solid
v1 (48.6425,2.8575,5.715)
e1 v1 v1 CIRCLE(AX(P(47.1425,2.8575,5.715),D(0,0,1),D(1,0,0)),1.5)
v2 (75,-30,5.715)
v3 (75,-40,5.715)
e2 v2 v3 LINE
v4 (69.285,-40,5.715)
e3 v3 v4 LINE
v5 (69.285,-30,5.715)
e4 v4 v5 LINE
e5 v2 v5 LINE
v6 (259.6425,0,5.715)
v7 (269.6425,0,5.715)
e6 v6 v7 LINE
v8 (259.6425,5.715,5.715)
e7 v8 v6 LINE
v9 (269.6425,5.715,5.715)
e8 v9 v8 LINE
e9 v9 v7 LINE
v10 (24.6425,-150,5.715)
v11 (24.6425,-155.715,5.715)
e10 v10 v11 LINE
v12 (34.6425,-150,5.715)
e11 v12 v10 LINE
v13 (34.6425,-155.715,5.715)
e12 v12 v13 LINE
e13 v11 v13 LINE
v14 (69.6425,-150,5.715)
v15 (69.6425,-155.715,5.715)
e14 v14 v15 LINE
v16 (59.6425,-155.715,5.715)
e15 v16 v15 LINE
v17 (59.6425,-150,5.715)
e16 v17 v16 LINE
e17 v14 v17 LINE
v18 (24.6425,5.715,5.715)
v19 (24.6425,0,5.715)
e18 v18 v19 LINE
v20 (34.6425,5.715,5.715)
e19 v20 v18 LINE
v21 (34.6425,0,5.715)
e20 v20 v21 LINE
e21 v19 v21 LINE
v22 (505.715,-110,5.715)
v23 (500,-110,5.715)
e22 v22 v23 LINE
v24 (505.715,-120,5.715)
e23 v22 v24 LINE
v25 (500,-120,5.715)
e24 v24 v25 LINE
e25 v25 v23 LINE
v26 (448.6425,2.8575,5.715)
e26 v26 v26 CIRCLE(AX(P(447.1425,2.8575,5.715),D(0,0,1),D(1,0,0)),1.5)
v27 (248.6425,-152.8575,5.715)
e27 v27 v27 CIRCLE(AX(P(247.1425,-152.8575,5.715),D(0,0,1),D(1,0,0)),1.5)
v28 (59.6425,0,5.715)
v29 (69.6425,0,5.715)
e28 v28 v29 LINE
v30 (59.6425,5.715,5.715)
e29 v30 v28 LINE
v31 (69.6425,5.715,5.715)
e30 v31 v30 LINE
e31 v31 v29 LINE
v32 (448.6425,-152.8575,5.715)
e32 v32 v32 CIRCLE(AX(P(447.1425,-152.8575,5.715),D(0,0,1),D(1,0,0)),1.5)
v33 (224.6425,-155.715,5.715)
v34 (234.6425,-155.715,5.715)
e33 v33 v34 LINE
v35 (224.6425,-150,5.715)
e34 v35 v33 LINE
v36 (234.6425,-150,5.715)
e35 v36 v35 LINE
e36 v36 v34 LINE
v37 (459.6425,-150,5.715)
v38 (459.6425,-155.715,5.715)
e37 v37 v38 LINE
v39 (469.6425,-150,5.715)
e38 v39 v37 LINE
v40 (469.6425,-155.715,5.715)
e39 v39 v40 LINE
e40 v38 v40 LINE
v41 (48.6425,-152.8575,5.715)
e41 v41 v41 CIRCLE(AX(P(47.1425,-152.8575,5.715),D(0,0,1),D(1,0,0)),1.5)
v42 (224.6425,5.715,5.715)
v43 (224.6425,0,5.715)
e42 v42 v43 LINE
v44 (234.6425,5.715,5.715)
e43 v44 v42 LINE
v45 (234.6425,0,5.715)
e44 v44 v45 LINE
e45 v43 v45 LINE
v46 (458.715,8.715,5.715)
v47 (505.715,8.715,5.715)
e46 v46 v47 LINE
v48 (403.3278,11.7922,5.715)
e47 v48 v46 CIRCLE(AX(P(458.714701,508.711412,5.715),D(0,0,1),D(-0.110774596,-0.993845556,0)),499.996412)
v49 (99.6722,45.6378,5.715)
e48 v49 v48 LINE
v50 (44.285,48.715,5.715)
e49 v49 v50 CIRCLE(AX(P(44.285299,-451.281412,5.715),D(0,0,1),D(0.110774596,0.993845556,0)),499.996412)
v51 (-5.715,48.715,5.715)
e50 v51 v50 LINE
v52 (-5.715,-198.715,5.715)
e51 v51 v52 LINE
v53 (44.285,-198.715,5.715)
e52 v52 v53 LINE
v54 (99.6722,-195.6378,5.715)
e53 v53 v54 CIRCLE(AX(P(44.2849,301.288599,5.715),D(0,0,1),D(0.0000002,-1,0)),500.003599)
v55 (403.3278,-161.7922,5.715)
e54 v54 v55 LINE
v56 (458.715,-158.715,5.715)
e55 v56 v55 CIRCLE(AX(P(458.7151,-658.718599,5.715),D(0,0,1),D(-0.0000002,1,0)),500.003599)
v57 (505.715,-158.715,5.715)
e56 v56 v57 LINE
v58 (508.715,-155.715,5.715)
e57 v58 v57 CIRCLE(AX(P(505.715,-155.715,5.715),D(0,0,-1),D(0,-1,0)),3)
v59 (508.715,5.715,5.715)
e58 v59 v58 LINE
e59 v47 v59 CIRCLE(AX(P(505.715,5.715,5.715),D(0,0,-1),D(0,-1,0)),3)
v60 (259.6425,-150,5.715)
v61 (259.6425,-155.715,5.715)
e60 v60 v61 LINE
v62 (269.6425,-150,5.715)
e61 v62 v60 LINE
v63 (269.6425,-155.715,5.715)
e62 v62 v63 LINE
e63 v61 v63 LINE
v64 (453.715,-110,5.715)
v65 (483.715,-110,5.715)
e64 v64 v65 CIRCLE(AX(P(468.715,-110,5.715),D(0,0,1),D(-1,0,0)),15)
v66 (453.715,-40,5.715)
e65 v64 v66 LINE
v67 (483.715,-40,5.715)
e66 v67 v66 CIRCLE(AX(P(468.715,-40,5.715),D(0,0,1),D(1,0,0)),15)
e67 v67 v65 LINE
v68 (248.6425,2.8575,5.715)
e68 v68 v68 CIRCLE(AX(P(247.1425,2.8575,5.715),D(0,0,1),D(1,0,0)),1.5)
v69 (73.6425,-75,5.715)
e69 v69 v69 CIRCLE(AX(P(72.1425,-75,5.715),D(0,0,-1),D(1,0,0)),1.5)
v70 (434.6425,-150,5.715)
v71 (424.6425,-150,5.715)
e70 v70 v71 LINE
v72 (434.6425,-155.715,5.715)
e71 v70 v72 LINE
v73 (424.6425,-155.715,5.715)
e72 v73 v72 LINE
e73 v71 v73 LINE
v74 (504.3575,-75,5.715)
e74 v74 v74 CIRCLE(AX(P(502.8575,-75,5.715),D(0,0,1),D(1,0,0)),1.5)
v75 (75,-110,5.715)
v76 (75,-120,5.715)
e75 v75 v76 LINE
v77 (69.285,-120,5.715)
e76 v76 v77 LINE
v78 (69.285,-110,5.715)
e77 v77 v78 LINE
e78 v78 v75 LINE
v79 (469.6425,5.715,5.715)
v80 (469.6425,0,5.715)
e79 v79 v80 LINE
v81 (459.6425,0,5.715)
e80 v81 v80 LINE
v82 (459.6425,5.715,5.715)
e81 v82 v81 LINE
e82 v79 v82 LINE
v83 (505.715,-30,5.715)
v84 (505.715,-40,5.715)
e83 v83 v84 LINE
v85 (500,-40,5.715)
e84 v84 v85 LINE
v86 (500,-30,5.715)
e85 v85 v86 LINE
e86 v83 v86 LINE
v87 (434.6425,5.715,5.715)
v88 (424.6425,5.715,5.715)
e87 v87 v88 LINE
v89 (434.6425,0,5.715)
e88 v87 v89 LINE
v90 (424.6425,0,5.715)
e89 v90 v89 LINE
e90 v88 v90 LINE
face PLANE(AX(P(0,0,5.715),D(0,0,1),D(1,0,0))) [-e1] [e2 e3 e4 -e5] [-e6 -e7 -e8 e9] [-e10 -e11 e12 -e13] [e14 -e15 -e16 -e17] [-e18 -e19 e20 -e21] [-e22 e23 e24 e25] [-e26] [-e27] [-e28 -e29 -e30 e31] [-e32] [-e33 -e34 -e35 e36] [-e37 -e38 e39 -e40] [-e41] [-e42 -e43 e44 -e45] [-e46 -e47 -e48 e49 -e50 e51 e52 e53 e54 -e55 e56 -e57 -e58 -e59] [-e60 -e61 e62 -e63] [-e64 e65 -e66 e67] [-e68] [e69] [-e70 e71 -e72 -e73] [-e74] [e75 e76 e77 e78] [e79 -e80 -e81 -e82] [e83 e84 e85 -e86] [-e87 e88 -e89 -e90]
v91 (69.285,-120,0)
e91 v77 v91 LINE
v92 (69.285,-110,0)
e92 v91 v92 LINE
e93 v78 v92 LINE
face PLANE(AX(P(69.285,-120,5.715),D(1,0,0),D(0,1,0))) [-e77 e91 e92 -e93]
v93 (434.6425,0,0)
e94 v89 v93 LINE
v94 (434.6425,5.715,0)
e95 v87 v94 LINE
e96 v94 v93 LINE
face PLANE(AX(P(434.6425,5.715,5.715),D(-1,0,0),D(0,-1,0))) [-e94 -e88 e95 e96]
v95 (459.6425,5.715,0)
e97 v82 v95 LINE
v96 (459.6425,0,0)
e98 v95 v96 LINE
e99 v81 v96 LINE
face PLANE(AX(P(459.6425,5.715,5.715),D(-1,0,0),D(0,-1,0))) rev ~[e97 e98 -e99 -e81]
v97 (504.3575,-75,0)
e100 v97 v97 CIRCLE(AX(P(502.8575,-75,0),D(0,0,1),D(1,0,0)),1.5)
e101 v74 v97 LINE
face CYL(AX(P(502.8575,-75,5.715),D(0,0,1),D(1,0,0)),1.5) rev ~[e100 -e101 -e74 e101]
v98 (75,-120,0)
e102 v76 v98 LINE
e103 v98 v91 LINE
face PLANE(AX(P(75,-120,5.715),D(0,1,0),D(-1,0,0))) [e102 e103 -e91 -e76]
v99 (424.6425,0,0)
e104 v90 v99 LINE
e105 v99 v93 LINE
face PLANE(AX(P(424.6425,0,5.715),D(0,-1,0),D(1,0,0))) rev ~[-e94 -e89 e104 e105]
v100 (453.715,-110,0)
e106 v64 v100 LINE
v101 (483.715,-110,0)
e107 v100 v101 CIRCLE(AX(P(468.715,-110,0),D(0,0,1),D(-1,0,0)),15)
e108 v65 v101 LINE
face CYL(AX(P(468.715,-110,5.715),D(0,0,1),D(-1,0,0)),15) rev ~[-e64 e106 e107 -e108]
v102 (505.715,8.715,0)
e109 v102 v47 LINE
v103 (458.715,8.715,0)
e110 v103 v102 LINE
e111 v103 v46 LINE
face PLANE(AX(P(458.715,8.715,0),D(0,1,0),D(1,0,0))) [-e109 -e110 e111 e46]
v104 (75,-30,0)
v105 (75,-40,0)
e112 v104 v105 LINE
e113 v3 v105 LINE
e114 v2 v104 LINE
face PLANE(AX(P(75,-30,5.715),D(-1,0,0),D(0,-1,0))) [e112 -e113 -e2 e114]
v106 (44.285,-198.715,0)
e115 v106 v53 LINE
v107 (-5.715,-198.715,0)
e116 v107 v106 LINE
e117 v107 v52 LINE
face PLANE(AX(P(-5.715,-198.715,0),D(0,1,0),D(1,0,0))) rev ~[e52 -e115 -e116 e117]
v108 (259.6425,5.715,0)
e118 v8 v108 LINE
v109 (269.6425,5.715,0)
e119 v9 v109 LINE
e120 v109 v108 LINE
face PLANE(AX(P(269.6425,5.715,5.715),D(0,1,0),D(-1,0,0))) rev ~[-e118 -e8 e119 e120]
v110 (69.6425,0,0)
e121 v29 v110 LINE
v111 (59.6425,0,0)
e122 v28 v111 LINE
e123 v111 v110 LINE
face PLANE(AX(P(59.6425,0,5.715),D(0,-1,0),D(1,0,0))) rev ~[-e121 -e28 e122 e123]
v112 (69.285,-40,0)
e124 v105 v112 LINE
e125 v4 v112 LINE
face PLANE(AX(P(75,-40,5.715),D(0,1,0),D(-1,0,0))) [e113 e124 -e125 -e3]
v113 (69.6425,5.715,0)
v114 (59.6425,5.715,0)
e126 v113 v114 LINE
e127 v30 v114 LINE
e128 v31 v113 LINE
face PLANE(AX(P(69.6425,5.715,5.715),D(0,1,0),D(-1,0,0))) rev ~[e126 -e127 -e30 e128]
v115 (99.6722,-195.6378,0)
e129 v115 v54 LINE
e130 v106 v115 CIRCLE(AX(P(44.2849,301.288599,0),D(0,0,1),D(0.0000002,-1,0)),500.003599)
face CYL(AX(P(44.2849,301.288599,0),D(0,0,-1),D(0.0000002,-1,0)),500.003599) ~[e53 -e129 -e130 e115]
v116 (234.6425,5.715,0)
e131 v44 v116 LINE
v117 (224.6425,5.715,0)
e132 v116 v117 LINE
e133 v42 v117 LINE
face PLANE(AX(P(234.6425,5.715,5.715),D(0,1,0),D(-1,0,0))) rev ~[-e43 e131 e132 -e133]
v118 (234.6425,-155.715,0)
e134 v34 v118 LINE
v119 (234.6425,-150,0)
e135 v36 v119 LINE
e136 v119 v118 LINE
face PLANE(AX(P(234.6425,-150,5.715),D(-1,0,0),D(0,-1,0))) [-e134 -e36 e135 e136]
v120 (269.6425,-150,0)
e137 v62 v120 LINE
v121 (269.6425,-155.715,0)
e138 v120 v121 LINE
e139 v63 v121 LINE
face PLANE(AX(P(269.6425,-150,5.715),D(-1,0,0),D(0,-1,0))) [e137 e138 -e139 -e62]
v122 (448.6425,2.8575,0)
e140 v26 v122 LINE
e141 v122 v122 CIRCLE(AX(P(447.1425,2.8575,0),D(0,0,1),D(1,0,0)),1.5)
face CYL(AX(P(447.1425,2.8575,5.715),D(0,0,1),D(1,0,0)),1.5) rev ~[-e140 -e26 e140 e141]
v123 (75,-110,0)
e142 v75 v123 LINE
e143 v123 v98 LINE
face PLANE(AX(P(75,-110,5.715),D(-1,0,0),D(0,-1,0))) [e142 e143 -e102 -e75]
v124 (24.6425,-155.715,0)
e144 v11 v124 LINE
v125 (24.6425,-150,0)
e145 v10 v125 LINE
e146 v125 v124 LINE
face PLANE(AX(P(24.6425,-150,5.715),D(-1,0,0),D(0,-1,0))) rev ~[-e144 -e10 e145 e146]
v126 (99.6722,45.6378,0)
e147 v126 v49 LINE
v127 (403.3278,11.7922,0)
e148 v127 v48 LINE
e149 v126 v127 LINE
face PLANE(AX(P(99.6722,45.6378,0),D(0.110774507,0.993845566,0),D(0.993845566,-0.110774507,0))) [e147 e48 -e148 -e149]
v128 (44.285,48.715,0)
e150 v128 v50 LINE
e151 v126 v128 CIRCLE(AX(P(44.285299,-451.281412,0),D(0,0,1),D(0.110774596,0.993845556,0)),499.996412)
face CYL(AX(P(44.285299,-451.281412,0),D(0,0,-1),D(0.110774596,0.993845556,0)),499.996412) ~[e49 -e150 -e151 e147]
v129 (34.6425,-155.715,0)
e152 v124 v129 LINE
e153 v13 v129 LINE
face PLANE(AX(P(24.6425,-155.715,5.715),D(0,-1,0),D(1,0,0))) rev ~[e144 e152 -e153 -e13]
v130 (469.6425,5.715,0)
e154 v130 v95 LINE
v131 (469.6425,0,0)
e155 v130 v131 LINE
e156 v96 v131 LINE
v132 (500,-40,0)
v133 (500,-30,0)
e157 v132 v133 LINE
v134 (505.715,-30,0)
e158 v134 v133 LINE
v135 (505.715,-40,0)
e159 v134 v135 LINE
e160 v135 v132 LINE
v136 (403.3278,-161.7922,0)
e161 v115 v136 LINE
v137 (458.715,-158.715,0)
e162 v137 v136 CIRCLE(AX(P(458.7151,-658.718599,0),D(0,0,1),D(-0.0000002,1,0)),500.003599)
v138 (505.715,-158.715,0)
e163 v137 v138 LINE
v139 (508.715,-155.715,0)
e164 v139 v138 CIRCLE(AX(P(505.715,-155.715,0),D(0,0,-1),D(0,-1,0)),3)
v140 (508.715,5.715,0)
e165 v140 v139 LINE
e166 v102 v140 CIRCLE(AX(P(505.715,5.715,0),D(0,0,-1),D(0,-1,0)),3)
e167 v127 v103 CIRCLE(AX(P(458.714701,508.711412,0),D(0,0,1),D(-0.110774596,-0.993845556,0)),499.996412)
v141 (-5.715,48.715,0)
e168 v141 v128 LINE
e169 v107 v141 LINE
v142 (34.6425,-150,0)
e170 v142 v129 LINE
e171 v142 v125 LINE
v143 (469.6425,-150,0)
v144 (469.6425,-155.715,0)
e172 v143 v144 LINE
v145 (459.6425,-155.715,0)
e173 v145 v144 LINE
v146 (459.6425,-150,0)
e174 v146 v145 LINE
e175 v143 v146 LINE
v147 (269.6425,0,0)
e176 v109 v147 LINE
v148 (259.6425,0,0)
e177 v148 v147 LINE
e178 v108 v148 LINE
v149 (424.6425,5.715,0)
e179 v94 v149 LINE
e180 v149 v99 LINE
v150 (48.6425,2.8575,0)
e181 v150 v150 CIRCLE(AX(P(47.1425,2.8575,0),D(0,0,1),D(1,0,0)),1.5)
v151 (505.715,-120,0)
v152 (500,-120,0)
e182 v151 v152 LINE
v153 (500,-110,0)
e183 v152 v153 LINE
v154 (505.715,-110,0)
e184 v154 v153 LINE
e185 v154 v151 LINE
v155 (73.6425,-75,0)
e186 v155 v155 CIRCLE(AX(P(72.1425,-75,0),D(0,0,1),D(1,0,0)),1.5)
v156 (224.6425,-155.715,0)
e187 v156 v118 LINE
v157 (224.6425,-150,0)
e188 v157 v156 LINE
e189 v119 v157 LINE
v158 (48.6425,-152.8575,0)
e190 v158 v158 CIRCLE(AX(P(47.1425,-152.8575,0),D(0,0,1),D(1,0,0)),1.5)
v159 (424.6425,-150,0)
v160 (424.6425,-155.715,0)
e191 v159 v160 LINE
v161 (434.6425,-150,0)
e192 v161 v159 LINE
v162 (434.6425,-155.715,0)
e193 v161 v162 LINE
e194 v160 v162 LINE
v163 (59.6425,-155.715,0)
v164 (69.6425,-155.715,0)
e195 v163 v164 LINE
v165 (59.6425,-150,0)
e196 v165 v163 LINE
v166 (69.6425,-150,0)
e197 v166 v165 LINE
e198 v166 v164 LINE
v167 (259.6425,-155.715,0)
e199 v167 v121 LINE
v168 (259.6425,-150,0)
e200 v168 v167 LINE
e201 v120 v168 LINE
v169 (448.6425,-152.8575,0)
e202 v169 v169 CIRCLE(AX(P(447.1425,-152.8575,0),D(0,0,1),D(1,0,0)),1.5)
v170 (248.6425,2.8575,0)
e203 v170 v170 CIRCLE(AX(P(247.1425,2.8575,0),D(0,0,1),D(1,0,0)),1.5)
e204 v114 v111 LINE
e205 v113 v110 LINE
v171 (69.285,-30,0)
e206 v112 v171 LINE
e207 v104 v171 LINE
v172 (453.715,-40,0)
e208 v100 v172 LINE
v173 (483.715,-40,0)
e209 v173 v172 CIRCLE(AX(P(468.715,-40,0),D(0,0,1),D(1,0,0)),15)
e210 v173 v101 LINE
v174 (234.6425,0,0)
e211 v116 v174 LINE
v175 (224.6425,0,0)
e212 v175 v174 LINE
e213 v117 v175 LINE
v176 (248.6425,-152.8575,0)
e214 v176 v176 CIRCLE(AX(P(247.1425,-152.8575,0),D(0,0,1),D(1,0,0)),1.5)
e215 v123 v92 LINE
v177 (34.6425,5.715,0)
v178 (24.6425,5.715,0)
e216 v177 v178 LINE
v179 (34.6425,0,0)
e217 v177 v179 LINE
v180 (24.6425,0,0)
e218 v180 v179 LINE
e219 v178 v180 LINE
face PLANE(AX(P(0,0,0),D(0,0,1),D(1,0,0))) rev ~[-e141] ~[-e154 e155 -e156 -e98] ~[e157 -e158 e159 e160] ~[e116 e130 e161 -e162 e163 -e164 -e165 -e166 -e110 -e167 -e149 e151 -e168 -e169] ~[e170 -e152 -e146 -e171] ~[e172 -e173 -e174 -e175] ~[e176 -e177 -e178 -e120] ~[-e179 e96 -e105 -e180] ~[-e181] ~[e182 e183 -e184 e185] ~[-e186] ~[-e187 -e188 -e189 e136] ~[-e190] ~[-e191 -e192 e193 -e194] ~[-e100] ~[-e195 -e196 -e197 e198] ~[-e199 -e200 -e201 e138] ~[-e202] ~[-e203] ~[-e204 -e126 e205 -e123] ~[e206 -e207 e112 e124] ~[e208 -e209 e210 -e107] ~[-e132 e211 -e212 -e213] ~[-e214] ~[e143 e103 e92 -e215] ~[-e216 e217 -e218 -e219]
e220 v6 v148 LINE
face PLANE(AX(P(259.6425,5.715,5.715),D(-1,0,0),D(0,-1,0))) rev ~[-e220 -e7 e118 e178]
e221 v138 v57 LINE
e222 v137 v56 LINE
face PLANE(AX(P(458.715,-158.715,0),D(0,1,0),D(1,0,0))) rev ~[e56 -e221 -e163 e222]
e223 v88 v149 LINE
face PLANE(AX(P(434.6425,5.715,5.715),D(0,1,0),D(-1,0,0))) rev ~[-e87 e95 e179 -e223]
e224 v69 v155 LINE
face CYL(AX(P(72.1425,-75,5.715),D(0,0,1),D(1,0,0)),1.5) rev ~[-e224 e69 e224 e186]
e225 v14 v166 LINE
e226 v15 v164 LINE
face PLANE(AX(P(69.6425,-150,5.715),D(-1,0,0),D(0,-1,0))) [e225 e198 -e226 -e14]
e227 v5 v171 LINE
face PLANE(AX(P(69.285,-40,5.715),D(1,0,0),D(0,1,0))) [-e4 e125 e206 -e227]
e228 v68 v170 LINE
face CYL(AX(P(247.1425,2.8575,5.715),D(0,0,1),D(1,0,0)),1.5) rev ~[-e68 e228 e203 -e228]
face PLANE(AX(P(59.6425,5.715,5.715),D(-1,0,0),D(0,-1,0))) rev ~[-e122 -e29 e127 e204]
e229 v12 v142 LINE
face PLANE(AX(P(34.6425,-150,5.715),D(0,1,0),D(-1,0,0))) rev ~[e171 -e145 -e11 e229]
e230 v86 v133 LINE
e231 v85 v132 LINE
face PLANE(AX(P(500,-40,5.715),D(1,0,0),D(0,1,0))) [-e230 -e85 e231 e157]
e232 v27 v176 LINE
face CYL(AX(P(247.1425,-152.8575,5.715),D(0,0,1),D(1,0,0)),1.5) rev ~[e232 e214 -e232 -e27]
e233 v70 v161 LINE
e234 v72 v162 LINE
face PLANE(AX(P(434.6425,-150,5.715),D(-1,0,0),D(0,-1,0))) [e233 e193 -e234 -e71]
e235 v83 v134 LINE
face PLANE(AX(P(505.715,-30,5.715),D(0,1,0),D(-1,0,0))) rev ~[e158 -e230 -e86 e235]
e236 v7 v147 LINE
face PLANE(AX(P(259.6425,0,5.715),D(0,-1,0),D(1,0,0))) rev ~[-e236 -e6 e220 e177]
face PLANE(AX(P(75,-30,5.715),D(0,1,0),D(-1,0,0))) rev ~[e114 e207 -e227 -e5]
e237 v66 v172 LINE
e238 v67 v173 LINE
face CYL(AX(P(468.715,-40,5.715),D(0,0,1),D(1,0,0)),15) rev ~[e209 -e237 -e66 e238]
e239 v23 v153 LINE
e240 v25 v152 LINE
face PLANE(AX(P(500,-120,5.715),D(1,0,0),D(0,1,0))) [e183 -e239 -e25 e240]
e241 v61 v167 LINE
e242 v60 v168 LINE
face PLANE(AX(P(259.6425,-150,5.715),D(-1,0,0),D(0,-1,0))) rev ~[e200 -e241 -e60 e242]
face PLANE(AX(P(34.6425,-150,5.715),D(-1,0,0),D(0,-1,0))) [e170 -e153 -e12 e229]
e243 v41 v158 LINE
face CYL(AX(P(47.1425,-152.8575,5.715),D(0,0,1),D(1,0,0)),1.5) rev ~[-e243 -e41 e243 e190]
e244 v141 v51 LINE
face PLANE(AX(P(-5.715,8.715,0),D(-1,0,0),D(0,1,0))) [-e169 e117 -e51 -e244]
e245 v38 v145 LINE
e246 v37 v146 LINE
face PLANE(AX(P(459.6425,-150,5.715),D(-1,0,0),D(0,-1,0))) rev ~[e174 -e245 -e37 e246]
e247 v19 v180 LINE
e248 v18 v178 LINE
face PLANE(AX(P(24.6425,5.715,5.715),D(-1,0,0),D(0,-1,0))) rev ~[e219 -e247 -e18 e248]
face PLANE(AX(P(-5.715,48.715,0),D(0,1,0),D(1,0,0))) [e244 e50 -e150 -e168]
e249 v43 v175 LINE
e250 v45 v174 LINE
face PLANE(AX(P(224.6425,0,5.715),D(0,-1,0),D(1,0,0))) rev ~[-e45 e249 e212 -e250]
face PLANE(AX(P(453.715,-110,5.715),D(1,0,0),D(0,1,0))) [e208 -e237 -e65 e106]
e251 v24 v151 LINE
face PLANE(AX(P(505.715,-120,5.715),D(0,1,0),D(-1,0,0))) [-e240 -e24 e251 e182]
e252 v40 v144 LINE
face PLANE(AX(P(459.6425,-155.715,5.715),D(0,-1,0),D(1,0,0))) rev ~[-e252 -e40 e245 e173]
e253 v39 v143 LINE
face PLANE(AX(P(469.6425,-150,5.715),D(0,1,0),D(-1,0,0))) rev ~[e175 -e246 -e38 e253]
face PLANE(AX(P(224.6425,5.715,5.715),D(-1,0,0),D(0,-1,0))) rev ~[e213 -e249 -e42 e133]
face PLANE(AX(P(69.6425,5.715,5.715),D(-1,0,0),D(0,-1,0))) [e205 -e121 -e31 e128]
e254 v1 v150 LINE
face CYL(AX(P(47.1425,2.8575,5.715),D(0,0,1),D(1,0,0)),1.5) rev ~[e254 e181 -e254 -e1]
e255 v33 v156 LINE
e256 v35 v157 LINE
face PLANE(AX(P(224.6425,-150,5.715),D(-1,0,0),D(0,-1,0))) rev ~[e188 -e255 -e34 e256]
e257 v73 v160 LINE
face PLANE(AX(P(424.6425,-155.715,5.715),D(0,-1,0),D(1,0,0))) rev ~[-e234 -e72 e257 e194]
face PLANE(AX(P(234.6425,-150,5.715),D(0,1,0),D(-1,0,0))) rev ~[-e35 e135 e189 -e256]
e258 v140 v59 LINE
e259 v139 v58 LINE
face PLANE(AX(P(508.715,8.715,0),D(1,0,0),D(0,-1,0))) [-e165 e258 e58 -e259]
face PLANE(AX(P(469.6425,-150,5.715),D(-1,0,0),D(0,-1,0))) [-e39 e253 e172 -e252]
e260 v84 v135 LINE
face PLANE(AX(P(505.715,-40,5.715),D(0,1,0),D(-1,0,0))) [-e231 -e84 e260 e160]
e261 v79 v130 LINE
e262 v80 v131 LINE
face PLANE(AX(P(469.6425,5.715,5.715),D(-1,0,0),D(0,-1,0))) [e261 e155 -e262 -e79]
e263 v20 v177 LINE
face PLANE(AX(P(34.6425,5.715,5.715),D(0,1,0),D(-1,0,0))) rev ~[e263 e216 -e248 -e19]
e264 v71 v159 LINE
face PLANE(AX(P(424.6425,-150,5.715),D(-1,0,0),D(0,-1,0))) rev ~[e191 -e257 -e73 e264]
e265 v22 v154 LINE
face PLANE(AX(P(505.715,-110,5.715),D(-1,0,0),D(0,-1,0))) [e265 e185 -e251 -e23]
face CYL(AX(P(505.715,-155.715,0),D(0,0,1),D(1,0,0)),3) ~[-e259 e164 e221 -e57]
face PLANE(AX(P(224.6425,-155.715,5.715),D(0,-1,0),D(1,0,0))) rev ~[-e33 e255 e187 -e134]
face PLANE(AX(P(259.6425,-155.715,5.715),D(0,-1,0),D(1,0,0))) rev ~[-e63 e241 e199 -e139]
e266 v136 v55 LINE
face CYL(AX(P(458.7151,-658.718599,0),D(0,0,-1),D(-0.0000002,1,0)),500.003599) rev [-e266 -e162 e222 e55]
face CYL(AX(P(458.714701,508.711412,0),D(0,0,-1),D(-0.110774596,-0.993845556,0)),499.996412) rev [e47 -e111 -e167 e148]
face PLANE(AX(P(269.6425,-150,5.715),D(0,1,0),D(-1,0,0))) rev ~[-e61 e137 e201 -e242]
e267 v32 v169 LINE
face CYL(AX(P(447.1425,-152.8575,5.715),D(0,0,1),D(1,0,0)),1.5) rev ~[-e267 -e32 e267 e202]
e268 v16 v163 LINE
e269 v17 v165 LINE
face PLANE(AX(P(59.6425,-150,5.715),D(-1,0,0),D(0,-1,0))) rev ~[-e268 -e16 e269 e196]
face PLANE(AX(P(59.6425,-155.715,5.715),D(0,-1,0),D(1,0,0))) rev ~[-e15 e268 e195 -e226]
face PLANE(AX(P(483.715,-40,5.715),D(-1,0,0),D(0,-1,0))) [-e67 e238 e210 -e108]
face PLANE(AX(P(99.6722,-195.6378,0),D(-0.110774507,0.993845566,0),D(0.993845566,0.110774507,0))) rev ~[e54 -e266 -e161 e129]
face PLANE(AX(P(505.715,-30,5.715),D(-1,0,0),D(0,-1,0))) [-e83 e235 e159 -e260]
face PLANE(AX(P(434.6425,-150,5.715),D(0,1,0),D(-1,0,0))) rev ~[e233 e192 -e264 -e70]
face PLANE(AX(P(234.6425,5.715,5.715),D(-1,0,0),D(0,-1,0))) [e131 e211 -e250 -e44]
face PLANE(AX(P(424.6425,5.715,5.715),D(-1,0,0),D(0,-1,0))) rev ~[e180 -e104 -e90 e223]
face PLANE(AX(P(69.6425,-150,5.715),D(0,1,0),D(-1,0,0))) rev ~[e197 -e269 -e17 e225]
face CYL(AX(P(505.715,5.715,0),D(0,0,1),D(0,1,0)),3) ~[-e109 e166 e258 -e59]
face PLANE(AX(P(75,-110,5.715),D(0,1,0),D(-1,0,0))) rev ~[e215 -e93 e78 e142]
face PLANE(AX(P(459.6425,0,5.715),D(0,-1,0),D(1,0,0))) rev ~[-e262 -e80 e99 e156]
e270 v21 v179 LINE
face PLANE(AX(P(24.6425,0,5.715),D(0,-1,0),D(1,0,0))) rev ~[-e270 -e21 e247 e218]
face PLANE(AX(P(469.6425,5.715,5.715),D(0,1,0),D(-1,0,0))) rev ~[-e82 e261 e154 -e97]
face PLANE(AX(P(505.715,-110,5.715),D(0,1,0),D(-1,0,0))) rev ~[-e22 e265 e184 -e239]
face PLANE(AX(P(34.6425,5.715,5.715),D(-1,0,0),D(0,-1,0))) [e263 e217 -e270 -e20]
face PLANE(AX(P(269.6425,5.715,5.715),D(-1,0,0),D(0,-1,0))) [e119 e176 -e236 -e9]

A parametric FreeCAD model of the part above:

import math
import FreeCAD as App
import Part
import Sketcher
from FreeCAD import Vector
Q = App.Units.Quantity


def edges_at(feature, points):
    """Names of the edges that pass closest to the given points."""
    edges = feature.Shape.Edges
    near = lambda p: min(range(len(edges)), key=lambda i: edges[i].distToShape(Part.Vertex(*p))[0])
    return sorted({f"Edge{near(p) + 1}" for p in points})

doc = App.newDocument("Part")
body = doc.addObject("PartDesign::Body", "Body")

# Sketch on XY plane
sketch1 = body.newObject("Sketcher::SketchObject", "Sketch")
sketch1.AttachmentSupport = (doc.getObject("XY_Plane"), [""])
sketch1.MapMode = "FlatFace"
sketch1.addGeometry([
    Part.LineSegment(Vector(-5.715, 48.715, 0), Vector(-5.715, -198.715, 0)),  # 0
    Part.LineSegment(Vector(-5.715, -198.715, 0), Vector(44.285, -198.715, 0)),  # 1
    Part.ArcOfCircle(Part.Circle(Vector(44.2849, 301.288599, 0), Vector(0, 0, 1), 500.003599), math.radians(-89.999989), math.radians(-83.640076)),  # 2
    Part.LineSegment(Vector(99.6722, -195.6378, 0), Vector(403.3278, -161.7922, 0)),  # 3
    Part.ArcOfCircle(Part.Circle(Vector(458.7151, -658.718599, 0), Vector(0, 0, 1), 500.003599), math.radians(90.000011), math.radians(96.359924)),  # 4
    Part.LineSegment(Vector(458.715, -158.715, 0), Vector(508.715, -158.715, 0)),  # 5
    Part.LineSegment(Vector(508.715, -158.715, 0), Vector(508.715, 8.715, 0)),  # 6
    Part.LineSegment(Vector(508.715, 8.715, 0), Vector(458.715, 8.715, 0)),  # 7
    Part.ArcOfCircle(Part.Circle(Vector(458.714701, 508.711412, 0), Vector(0, 0, 1), 499.996412), math.radians(-96.35997), math.radians(-89.999966)),  # 8
    Part.LineSegment(Vector(403.3278, 11.7922, 0), Vector(99.6722, 45.6378, 0)),  # 9
    Part.ArcOfCircle(Part.Circle(Vector(44.285299, -451.281412, 0), Vector(0, 0, 1), 499.996412), math.radians(83.64003), math.radians(90.000034)),  # 10
    Part.LineSegment(Vector(44.285, 48.715, 0), Vector(-5.715, 48.715, 0)),  # 11
], False)
sketch1.addConstraint([
    Sketcher.Constraint("Coincident", 0, 2, 1, 1),
    Sketcher.Constraint("Coincident", 1, 2, 2, 1),
    Sketcher.Constraint("Coincident", 2, 2, 3, 1),
    Sketcher.Constraint("Coincident", 3, 2, 4, 2),
    Sketcher.Constraint("Coincident", 4, 1, 5, 1),
    Sketcher.Constraint("Coincident", 5, 2, 6, 1),
    Sketcher.Constraint("Coincident", 6, 2, 7, 1),
    Sketcher.Constraint("Coincident", 7, 2, 8, 2),
    Sketcher.Constraint("Coincident", 8, 1, 9, 1),
    Sketcher.Constraint("Coincident", 9, 2, 10, 1),
    Sketcher.Constraint("Coincident", 10, 2, 11, 1),
    Sketcher.Constraint("Coincident", 11, 2, 0, 1),
    Sketcher.Constraint("Vertical", 0),
    Sketcher.Constraint("Horizontal", 1),
    Sketcher.Constraint("Horizontal", 5),
    Sketcher.Constraint("Vertical", 6),
    Sketcher.Constraint("Horizontal", 7),
    Sketcher.Constraint("Horizontal", 11),
    Sketcher.Constraint("DistanceX", 1, 1, 1, 2, Q("1.9685 in")),
    Sketcher.Constraint("DistanceX", 5, 1, 5, 2, Q("1.9685 in")),
    Sketcher.Constraint("DistanceX", 7, 2, 7, 1, Q("1.9685 in")),
    Sketcher.Constraint("DistanceX", 11, 2, 11, 1, Q("1.9685 in")),
    Sketcher.Constraint("DistanceX", 1, 2, 10, 3, Q("0 in")),
    Sketcher.Constraint("Radius", 8, Q("19.6849 in")),
    Sketcher.Constraint("Radius", 10, Q("19.6849 in")),
    Sketcher.Constraint("DistanceX", 0, 2, 2, 3, Q("1.9685 in")),
    Sketcher.Constraint("DistanceY", 1, 2, 4, 1, Q("1.5748 in")),
    Sketcher.Constraint("DistanceX", 4, 3, 5, 2, Q("1.9685 in")),
    Sketcher.Constraint("Radius", 2, Q("500.0036 mm")),
    Sketcher.Constraint("Radius", 4, Q("500.0036 mm")),
    Sketcher.Constraint("DistanceX", 8, 3, 6, 2, Q("50.0003 mm")),
    Sketcher.Constraint("DistanceY", -1, 1, 8, 3, Q("20.028 in")),
    Sketcher.Constraint("DistanceX", 0, 2, -1, 1, Q("0.225 in")),
    Sketcher.Constraint("DistanceY", 10, 3, 8, 3, Q("37.795 in")),
    Sketcher.Constraint("DistanceY", 9, 2, 2, 3, Q("10.065 in")),
    Sketcher.Constraint("DistanceY", 0, 2, 0, 1, Q("247.43 mm")),
    Sketcher.Constraint("DistanceY", 2, 2, 3, 2, Q("1.3325 in")),
    Sketcher.Constraint("DistanceX", 3, 2, 4, 3, Q("2.1806 in")),
    Sketcher.Constraint("DistanceX", 8, 1, 7, 2, Q("2.1806 in")),
    Sketcher.Constraint("Distance", 3, Q("305.536 mm")),
])
pad1 = body.newObject("PartDesign::Pad", "Pad")
pad1.Profile = sketch1
pad1.Length = Q("0.225 in")
doc.recompute()

fillet = body.newObject("PartDesign::Fillet", "Fillet")
fillet.Base = (pad1, edges_at(pad1, [(508.715, 8.715, 2.857), (508.715, -158.715, 2.857)]))
fillet.Radius = Q("0.1181102 in")

# Sketch on XY plane
sketch2 = body.newObject("Sketcher::SketchObject", "Sketch001")
sketch2.AttachmentSupport = (doc.getObject("XY_Plane"), [""])
sketch2.MapMode = "FlatFace"
sketch2.AttachmentOffset = App.Placement(Vector(0, 0, 0.225 * 25.4), App.Rotation())
sketch2.addGeometry([
    Part.LineSegment(Vector(24.6, 5.7, 0), Vector(24.6, 0, 0)),  # 0
    Part.LineSegment(Vector(24.6, 0, 0), Vector(34.6, 0, 0)),  # 1
    Part.LineSegment(Vector(34.6, 0, 0), Vector(34.6, 5.7, 0)),  # 2
    Part.LineSegment(Vector(34.6, 5.7, 0), Vector(24.6, 5.7, 0)),  # 3
    Part.LineSegment(Vector(59.6, 5.7, 0), Vector(59.6, 0, 0)),  # 4
    Part.LineSegment(Vector(59.6, 0, 0), Vector(69.6, 0, 0)),  # 5
    Part.LineSegment(Vector(69.6, 0, 0), Vector(69.6, 5.7, 0)),  # 6
    Part.LineSegment(Vector(69.6, 5.7, 0), Vector(59.6, 5.7, 0)),  # 7
    Part.LineSegment(Vector(224.6, 5.7, 0), Vector(224.6, 0, 0)),  # 8
    Part.LineSegment(Vector(224.6, 0, 0), Vector(234.6, 0, 0)),  # 9
    Part.LineSegment(Vector(234.6, 0, 0), Vector(234.6, 5.7, 0)),  # 10
    Part.LineSegment(Vector(234.6, 5.7, 0), Vector(224.6, 5.7, 0)),  # 11
    Part.LineSegment(Vector(259.6, 5.7, 0), Vector(259.6, 0, 0)),  # 12
    Part.LineSegment(Vector(259.6, 0, 0), Vector(269.6, 0, 0)),  # 13
    Part.LineSegment(Vector(269.6, 0, 0), Vector(269.6, 5.7, 0)),  # 14
    Part.LineSegment(Vector(269.6, 5.7, 0), Vector(259.6, 5.7, 0)),  # 15
    Part.LineSegment(Vector(424.6, 5.7, 0), Vector(424.6, 0, 0)),  # 16
    Part.LineSegment(Vector(424.6, 0, 0), Vector(434.6, 0, 0)),  # 17
    Part.LineSegment(Vector(434.6, 0, 0), Vector(434.6, 5.7, 0)),  # 18
    Part.LineSegment(Vector(434.6, 5.7, 0), Vector(424.6, 5.7, 0)),  # 19
    Part.LineSegment(Vector(459.6, 5.7, 0), Vector(459.6, 0, 0)),  # 20
    Part.LineSegment(Vector(459.6, 0, 0), Vector(469.6, 0, 0)),  # 21
    Part.LineSegment(Vector(469.6, 0, 0), Vector(469.6, 5.7, 0)),  # 22
    Part.LineSegment(Vector(469.6, 5.7, 0), Vector(459.6, 5.7, 0)),  # 23
    Part.LineSegment(Vector(500, -30, 0), Vector(500, -40, 0)),  # 24
    Part.LineSegment(Vector(500, -40, 0), Vector(505.7, -40, 0)),  # 25
    Part.LineSegment(Vector(505.7, -40, 0), Vector(505.7, -30, 0)),  # 26
    Part.LineSegment(Vector(505.7, -30, 0), Vector(500, -30, 0)),  # 27
    Part.LineSegment(Vector(500, -110, 0), Vector(500, -120, 0)),  # 28
    Part.LineSegment(Vector(500, -120, 0), Vector(505.7, -120, 0)),  # 29
    Part.LineSegment(Vector(505.7, -120, 0), Vector(505.7, -110, 0)),  # 30
    Part.LineSegment(Vector(505.7, -110, 0), Vector(500, -110, 0)),  # 31
    Part.LineSegment(Vector(459.6, -150, 0), Vector(459.6, -155.7, 0)),  # 32
    Part.LineSegment(Vector(459.6, -155.7, 0), Vector(469.6, -155.7, 0)),  # 33
    Part.LineSegment(Vector(469.6, -155.7, 0), Vector(469.6, -150, 0)),  # 34
    Part.LineSegment(Vector(469.6, -150, 0), Vector(459.6, -150, 0)),  # 35
    Part.LineSegment(Vector(424.6, -150, 0), Vector(424.6, -155.7, 0)),  # 36
    Part.LineSegment(Vector(424.6, -155.7, 0), Vector(434.6, -155.7, 0)),  # 37
    Part.LineSegment(Vector(434.6, -155.7, 0), Vector(434.6, -150, 0)),  # 38
    Part.LineSegment(Vector(434.6, -150, 0), Vector(424.6, -150, 0)),  # 39
    Part.LineSegment(Vector(259.6, -150, 0), Vector(259.6, -155.7, 0)),  # 40
    Part.LineSegment(Vector(259.6, -155.7, 0), Vector(269.6, -155.7, 0)),  # 41
    Part.LineSegment(Vector(269.6, -155.7, 0), Vector(269.6, -150, 0)),  # 42
    Part.LineSegment(Vector(269.6, -150, 0), Vector(259.6, -150, 0)),  # 43
    Part.LineSegment(Vector(224.6, -150, 0), Vector(224.6, -155.7, 0)),  # 44
    Part.LineSegment(Vector(224.6, -155.7, 0), Vector(234.6, -155.7, 0)),  # 45
    Part.LineSegment(Vector(234.6, -155.7, 0), Vector(234.6, -150, 0)),  # 46
    Part.LineSegment(Vector(234.6, -150, 0), Vector(224.6, -150, 0)),  # 47
    Part.LineSegment(Vector(59.6, -150, 0), Vector(59.6, -155.7, 0)),  # 48
    Part.LineSegment(Vector(59.6, -155.7, 0), Vector(69.6, -155.7, 0)),  # 49
    Part.LineSegment(Vector(69.6, -155.7, 0), Vector(69.6, -150, 0)),  # 50
    Part.LineSegment(Vector(69.6, -150, 0), Vector(59.6, -150, 0)),  # 51
    Part.LineSegment(Vector(24.6, -150, 0), Vector(24.6, -155.7, 0)),  # 52
    Part.LineSegment(Vector(24.6, -155.7, 0), Vector(34.6, -155.7, 0)),  # 53
    Part.LineSegment(Vector(34.6, -155.7, 0), Vector(34.6, -150, 0)),  # 54
    Part.LineSegment(Vector(34.6, -150, 0), Vector(24.6, -150, 0)),  # 55
    Part.Circle(Vector(47.1, 2.9, 0), Vector(0, 0, 1), 1.5),  # 56
    Part.Circle(Vector(247.1, 2.9, 0), Vector(0, 0, 1), 1.5),  # 57
    Part.Circle(Vector(447.1, 2.9, 0), Vector(0, 0, 1), 1.5),  # 58
    Part.Circle(Vector(502.9, -75, 0), Vector(0, 0, 1), 1.5),  # 59
    Part.Circle(Vector(447.1, -152.9, 0), Vector(0, 0, 1), 1.5),  # 60
    Part.Circle(Vector(247.1, -152.9, 0), Vector(0, 0, 1), 1.5),  # 61
    Part.Circle(Vector(47.1, -152.9, 0), Vector(0, 0, 1), 1.5),  # 62
], False)
sketch2.addConstraint([
    Sketcher.Constraint("Coincident", 0, 2, 1, 1),
    Sketcher.Constraint("Coincident", 1, 2, 2, 1),
    Sketcher.Constraint("Coincident", 2, 2, 3, 1),
    Sketcher.Constraint("Coincident", 3, 2, 0, 1),
    Sketcher.Constraint("Coincident", 4, 2, 5, 1),
    Sketcher.Constraint("Coincident", 5, 2, 6, 1),
    Sketcher.Constraint("Coincident", 6, 2, 7, 1),
    Sketcher.Constraint("Coincident", 7, 2, 4, 1),
    Sketcher.Constraint("Coincident", 8, 2, 9, 1),
    Sketcher.Constraint("Coincident", 9, 2, 10, 1),
    Sketcher.Constraint("Coincident", 10, 2, 11, 1),
    Sketcher.Constraint("Coincident", 11, 2, 8, 1),
    Sketcher.Constraint("Coincident", 12, 2, 13, 1),
    Sketcher.Constraint("Coincident", 13, 2, 14, 1),
    Sketcher.Constraint("Coincident", 14, 2, 15, 1),
    Sketcher.Constraint("Coincident", 15, 2, 12, 1),
    Sketcher.Constraint("Coincident", 16, 2, 17, 1),
    Sketcher.Constraint("Coincident", 17, 2, 18, 1),
    Sketcher.Constraint("Coincident", 18, 2, 19, 1),
    Sketcher.Constraint("Coincident", 19, 2, 16, 1),
    Sketcher.Constraint("Coincident", 20, 2, 21, 1),
    Sketcher.Constraint("Coincident", 21, 2, 22, 1),
    Sketcher.Constraint("Coincident", 22, 2, 23, 1),
    Sketcher.Constraint("Coincident", 23, 2, 20, 1),
    Sketcher.Constraint("Coincident", 24, 2, 25, 1),
    Sketcher.Constraint("Coincident", 25, 2, 26, 1),
    Sketcher.Constraint("Coincident", 26, 2, 27, 1),
    Sketcher.Constraint("Coincident", 27, 2, 24, 1),
    Sketcher.Constraint("Coincident", 28, 2, 29, 1),
    Sketcher.Constraint("Coincident", 29, 2, 30, 1),
    Sketcher.Constraint("Coincident", 30, 2, 31, 1),
    Sketcher.Constraint("Coincident", 31, 2, 28, 1),
    Sketcher.Constraint("Coincident", 32, 2, 33, 1),
    Sketcher.Constraint("Coincident", 33, 2, 34, 1),
    Sketcher.Constraint("Coincident", 34, 2, 35, 1),
    Sketcher.Constraint("Coincident", 35, 2, 32, 1),
    Sketcher.Constraint("Coincident", 36, 2, 37, 1),
    Sketcher.Constraint("Coincident", 37, 2, 38, 1),
    Sketcher.Constraint("Coincident", 38, 2, 39, 1),
    Sketcher.Constraint("Coincident", 39, 2, 36, 1),
    Sketcher.Constraint("Coincident", 40, 2, 41, 1),
    Sketcher.Constraint("Coincident", 41, 2, 42, 1),
    Sketcher.Constraint("Coincident", 42, 2, 43, 1),
    Sketcher.Constraint("Coincident", 43, 2, 40, 1),
    Sketcher.Constraint("Coincident", 44, 2, 45, 1),
    Sketcher.Constraint("Coincident", 45, 2, 46, 1),
    Sketcher.Constraint("Coincident", 46, 2, 47, 1),
    Sketcher.Constraint("Coincident", 47, 2, 44, 1),
    Sketcher.Constraint("Coincident", 48, 2, 49, 1),
    Sketcher.Constraint("Coincident", 49, 2, 50, 1),
    Sketcher.Constraint("Coincident", 50, 2, 51, 1),
    Sketcher.Constraint("Coincident", 51, 2, 48, 1),
    Sketcher.Constraint("Coincident", 52, 2, 53, 1),
    Sketcher.Constraint("Coincident", 53, 2, 54, 1),
    Sketcher.Constraint("Coincident", 54, 2, 55, 1),
    Sketcher.Constraint("Coincident", 55, 2, 52, 1),
    Sketcher.Constraint("Vertical", 0),
    Sketcher.Constraint("Horizontal", 1),
    Sketcher.Constraint("Vertical", 2),
    Sketcher.Constraint("Horizontal", 3),
    Sketcher.Constraint("Vertical", 4),
    Sketcher.Constraint("Horizontal", 5),
    Sketcher.Constraint("Vertical", 6),
    Sketcher.Constraint("Horizontal", 7),
    Sketcher.Constraint("Vertical", 8),
    Sketcher.Constraint("Horizontal", 9),
    Sketcher.Constraint("Vertical", 10),
    Sketcher.Constraint("Horizontal", 11),
    Sketcher.Constraint("Vertical", 12),
    Sketcher.Constraint("Horizontal", 13),
    Sketcher.Constraint("Vertical", 14),
    Sketcher.Constraint("Horizontal", 15),
    Sketcher.Constraint("Vertical", 16),
    Sketcher.Constraint("Horizontal", 17),
    Sketcher.Constraint("Vertical", 18),
    Sketcher.Constraint("Horizontal", 19),
    Sketcher.Constraint("Vertical", 20),
    Sketcher.Constraint("Horizontal", 21),
    Sketcher.Constraint("Vertical", 22),
    Sketcher.Constraint("Horizontal", 23),
    Sketcher.Constraint("Vertical", 24),
    Sketcher.Constraint("Horizontal", 25),
    Sketcher.Constraint("Vertical", 26),
    Sketcher.Constraint("Horizontal", 27),
    Sketcher.Constraint("Vertical", 28),
    Sketcher.Constraint("Horizontal", 29),
    Sketcher.Constraint("Vertical", 30),
    Sketcher.Constraint("Horizontal", 31),
    Sketcher.Constraint("Vertical", 32),
    Sketcher.Constraint("Horizontal", 33),
    Sketcher.Constraint("Vertical", 34),
    Sketcher.Constraint("Horizontal", 35),
    Sketcher.Constraint("Vertical", 36),
    Sketcher.Constraint("Horizontal", 37),
    Sketcher.Constraint("Vertical", 38),
    Sketcher.Constraint("Horizontal", 39),
    Sketcher.Constraint("Vertical", 40),
    Sketcher.Constraint("Horizontal", 41),
    Sketcher.Constraint("Vertical", 42),
    Sketcher.Constraint("Horizontal", 43),
    Sketcher.Constraint("Vertical", 44),
    Sketcher.Constraint("Horizontal", 45),
    Sketcher.Constraint("Vertical", 46),
    Sketcher.Constraint("Horizontal", 47),
    Sketcher.Constraint("Vertical", 48),
    Sketcher.Constraint("Horizontal", 49),
    Sketcher.Constraint("Vertical", 50),
    Sketcher.Constraint("Horizontal", 51),
    Sketcher.Constraint("Vertical", 52),
    Sketcher.Constraint("Horizontal", 53),
    Sketcher.Constraint("Vertical", 54),
    Sketcher.Constraint("Horizontal", 55),
    Sketcher.Constraint("Equal", 56, 57),
    Sketcher.Constraint("Equal", 57, 58),
    Sketcher.Constraint("Equal", 58, 59),
    Sketcher.Constraint("Equal", 59, 60),
    Sketcher.Constraint("Equal", 60, 61),
    Sketcher.Constraint("Equal", 61, 62),
    Sketcher.Constraint("PointOnObject", 0, 2, -1),
    Sketcher.Constraint("PointOnObject", 4, 2, -1),
    Sketcher.Constraint("PointOnObject", 8, 2, -1),
    Sketcher.Constraint("PointOnObject", 12, 2, -1),
    Sketcher.Constraint("PointOnObject", 16, 2, -1),
    Sketcher.Constraint("PointOnObject", 20, 2, -1),
    Sketcher.Constraint("Horizontal", 56, 3, 57, 3),
    Sketcher.Constraint("Horizontal", 57, 3, 58, 3),
    Sketcher.Constraint("Horizontal", 60, 3, 61, 3),
    Sketcher.Constraint("Horizontal", 61, 3, 62, 3),
    Sketcher.Constraint("Horizontal", 3, 2, 6, 2),
    Sketcher.Constraint("Horizontal", 7, 2, 10, 2),
    Sketcher.Constraint("Horizontal", 11, 2, 14, 2),
    Sketcher.Constraint("Horizontal", 15, 2, 18, 2),
    Sketcher.Constraint("Horizontal", 19, 2, 22, 2),
    Sketcher.Constraint("Horizontal", 33, 2, 36, 2),
    Sketcher.Constraint("Horizontal", 35, 2, 38, 2),
    Sketcher.Constraint("Horizontal", 37, 2, 40, 2),
    Sketcher.Constraint("Horizontal", 39, 2, 42, 2),
    Sketcher.Constraint("Horizontal", 41, 2, 44, 2),
    Sketcher.Constraint("Horizontal", 43, 2, 46, 2),
    Sketcher.Constraint("Horizontal", 45, 2, 48, 2),
    Sketcher.Constraint("Horizontal", 47, 2, 50, 2),
    Sketcher.Constraint("Horizontal", 49, 2, 52, 2),
    Sketcher.Constraint("Horizontal", 51, 2, 54, 2),
    Sketcher.Constraint("Vertical", 58, 3, 60, 3),
    Sketcher.Constraint("Vertical", 57, 3, 61, 3),
    Sketcher.Constraint("Vertical", 56, 3, 62, 3),
    Sketcher.Constraint("Vertical", 27, 2, 28, 2),
    Sketcher.Constraint("Vertical", 26, 2, 29, 2),
    Sketcher.Constraint("Vertical", 23, 2, 32, 2),
    Sketcher.Constraint("Vertical", 22, 2, 33, 2),
    Sketcher.Constraint("Vertical", 19, 2, 36, 2),
    Sketcher.Constraint("Vertical", 18, 2, 37, 2),
    Sketcher.Constraint("Vertical", 15, 2, 40, 2),
    Sketcher.Constraint("Vertical", 14, 2, 41, 2),
    Sketcher.Constraint("Vertical", 11, 2, 44, 2),
    Sketcher.Constraint("Vertical", 10, 2, 45, 2),
    Sketcher.Constraint("Vertical", 7, 2, 48, 2),
    Sketcher.Constraint("Vertical", 6, 2, 49, 2),
    Sketcher.Constraint("Vertical", 3, 2, 52, 2),
    Sketcher.Constraint("Vertical", 2, 2, 53, 2),
    Sketcher.Constraint("Equal", 3, 5),
    Sketcher.Constraint("Equal", 7, 9),
    Sketcher.Constraint("Equal", 11, 13),
    Sketcher.Constraint("Equal", 15, 17),
    Sketcher.Constraint("Equal", 19, 21),
    Sketcher.Constraint("Equal", 31, 0),
    Sketcher.Constraint("Equal", 55, 24),
    Sketcher.Constraint("Equal", 26, 28),
    Sketcher.Constraint("Equal", 22, 32),
    Sketcher.Constraint("Diameter", 56, Q("0.1181 in")),
    Sketcher.Constraint("DistanceX", 25, 1, 25, 2, Q("0.225 in")),
    Sketcher.Constraint("DistanceX", 1, 1, 1, 2, Q("0.3937 in")),
    Sketcher.Constraint("DistanceX", -1, 1, 56, 3, Q("1.856 in")),
    Sketcher.Constraint("DistanceY", 60, 3, -1, 1, Q("6.018 in")),
    Sketcher.Constraint("DistanceY", -1, 1, 56, 3, Q("0.1125 in")),
    Sketcher.Constraint("DistanceX", -1, 1, 8, 2, Q("8.8442 in")),
    Sketcher.Constraint("DistanceX", -1, 1, 16, 2, Q("16.7182 in")),
    Sketcher.Constraint("DistanceY", 24, 2, -1, 1, Q("1.5748 in")),
    Sketcher.Constraint("DistanceY", 28, 2, -1, 1, Q("4.7244 in")),
    Sketcher.Constraint("DistanceY", 32, 2, -1, 1, Q("6.1305 in")),
    Sketcher.Constraint("DistanceX", -1, 1, 57, 3, Q("247.1425 mm")),
    Sketcher.Constraint("DistanceX", -1, 1, 58, 3, Q("447.1425 mm")),
    Sketcher.Constraint("DistanceX", -1, 1, 59, 3, Q("502.8575 mm")),
    Sketcher.Constraint("DistanceY", 59, 3, -1, 1, Q("75 mm")),
    Sketcher.Constraint("DistanceX", -1, 1, 0, 2, Q("24.6425 mm")),
    Sketcher.Constraint("DistanceX", -1, 1, 4, 2, Q("59.6425 mm")),
    Sketcher.Constraint("DistanceX", -1, 1, 12, 2, Q("259.6425 mm")),
    Sketcher.Constraint("DistanceX", -1, 1, 20, 2, Q("459.6425 mm")),
    Sketcher.Constraint("DistanceX", -1, 1, 24, 2, Q("500 mm")),
])
pocket1 = body.newObject("PartDesign::Pocket", "Pocket")
pocket1.Profile = sketch2
pocket1.Type = "ThroughAll"

# Sketch on XY plane
sketch3 = body.newObject("Sketcher::SketchObject", "Sketch002")
sketch3.AttachmentSupport = (doc.getObject("XY_Plane"), [""])
sketch3.MapMode = "FlatFace"
sketch3.AttachmentOffset = App.Placement(Vector(0, 0, 0.225 * 25.4), App.Rotation())
sketch3.addGeometry([
    Part.LineSegment(Vector(75, -110, 0), Vector(69.3, -110, 0)),  # 0
    Part.LineSegment(Vector(69.3, -110, 0), Vector(69.3, -120, 0)),  # 1
    Part.LineSegment(Vector(69.3, -120, 0), Vector(75, -120, 0)),  # 2
    Part.LineSegment(Vector(75, -120, 0), Vector(75, -110, 0)),  # 3
    Part.Circle(Vector(72.1, -75, 0), Vector(0, 0, 1), 1.5),  # 4
    Part.LineSegment(Vector(75, -40, 0), Vector(75, -30, 0)),  # 5
    Part.LineSegment(Vector(75, -30, 0), Vector(69.3, -30, 0)),  # 6
    Part.LineSegment(Vector(69.3, -30, 0), Vector(69.3, -40, 0)),  # 7
    Part.LineSegment(Vector(69.3, -40, 0), Vector(75, -40, 0)),  # 8
], False)
sketch3.addConstraint([
    Sketcher.Constraint("Coincident", 0, 2, 1, 1),
    Sketcher.Constraint("Coincident", 1, 2, 2, 1),
    Sketcher.Constraint("Coincident", 2, 2, 3, 1),
    Sketcher.Constraint("Coincident", 3, 2, 0, 1),
    Sketcher.Constraint("Coincident", 5, 2, 6, 1),
    Sketcher.Constraint("Coincident", 6, 2, 7, 1),
    Sketcher.Constraint("Coincident", 7, 2, 8, 1),
    Sketcher.Constraint("Coincident", 8, 2, 5, 1),
    Sketcher.Constraint("Horizontal", 0),
    Sketcher.Constraint("Vertical", 1),
    Sketcher.Constraint("Horizontal", 2),
    Sketcher.Constraint("Vertical", 3),
    Sketcher.Constraint("Vertical", 5),
    Sketcher.Constraint("Horizontal", 6),
    Sketcher.Constraint("Vertical", 7),
    Sketcher.Constraint("Horizontal", 8),
    Sketcher.Constraint("Vertical", 3, 2, 5, 2),
    Sketcher.Constraint("Vertical", 1, 2, 6, 2),
    Sketcher.Constraint("Equal", 3, 5),
    Sketcher.Constraint("Diameter", 4, Q("0.1181 in")),
    Sketcher.Constraint("DistanceX", 0, 2, 0, 1, Q("0.225 in")),
    Sketcher.Constraint("DistanceY", 1, 2, 1, 1, Q("0.3937 in")),
    Sketcher.Constraint("DistanceY", 0, 2, -1, 1, Q("4.3307 in")),
    Sketcher.Constraint("DistanceY", 5, 2, -1, 1, Q("1.1811 in")),
    Sketcher.Constraint("DistanceX", 0, 2, 4, 3, Q("0.1125 in")),
    Sketcher.Constraint("DistanceX", -1, 1, 4, 3, Q("72.1425 mm")),
    Sketcher.Constraint("DistanceY", 4, 3, -1, 1, Q("75 mm")),
])
pocket2 = body.newObject("PartDesign::Pocket", "Pocket001")
pocket2.Profile = sketch3
pocket2.Type = "ThroughAll"

# Sketch on XY plane
sketch4 = body.newObject("Sketcher::SketchObject", "Sketch003")
sketch4.AttachmentSupport = (doc.getObject("XY_Plane"), [""])
sketch4.MapMode = "FlatFace"
sketch4.AttachmentOffset = App.Placement(Vector(0, 0, 0.225 * 25.4), App.Rotation())
sketch4.addGeometry([
    Part.LineSegment(Vector(454, -40, 0), Vector(454, -110, 0)),
    Part.ArcOfCircle(Part.Circle(Vector(469, -110, 0), Vector(0, 0, 1), 15), math.radians(180), math.radians(360)),
    Part.LineSegment(Vector(484, -110, 0), Vector(484, -40, 0)),
    Part.ArcOfCircle(Part.Circle(Vector(469, -40, 0), Vector(0, 0, 1), 15), math.radians(0), math.radians(180)),
], False)
sketch4.addConstraint([
    Sketcher.Constraint("Tangent", 0, 2, 1, 1),
    Sketcher.Constraint("Tangent", 1, 2, 2, 1),
    Sketcher.Constraint("Tangent", 2, 2, 3, 1),
    Sketcher.Constraint("Tangent", 3, 2, 0, 1),
    Sketcher.Constraint("Vertical", 0),
    Sketcher.Constraint("Vertical", 2),
    Sketcher.Constraint("Radius", 1, Q("15 mm")),
    Sketcher.Constraint("DistanceY", 0, 2, 0, 1, Q("2.7559 in")),
    Sketcher.Constraint("DistanceY", 1, 3, -1, 1, Q("4.3307 in")),
    Sketcher.Constraint("DistanceX", -1, 1, 0, 2, Q("17.8628 in")),
])
pocket3 = body.newObject("PartDesign::Pocket", "Pocket002")
pocket3.Profile = sketch4
pocket3.Type = "ThroughAll"

doc.recompute()
